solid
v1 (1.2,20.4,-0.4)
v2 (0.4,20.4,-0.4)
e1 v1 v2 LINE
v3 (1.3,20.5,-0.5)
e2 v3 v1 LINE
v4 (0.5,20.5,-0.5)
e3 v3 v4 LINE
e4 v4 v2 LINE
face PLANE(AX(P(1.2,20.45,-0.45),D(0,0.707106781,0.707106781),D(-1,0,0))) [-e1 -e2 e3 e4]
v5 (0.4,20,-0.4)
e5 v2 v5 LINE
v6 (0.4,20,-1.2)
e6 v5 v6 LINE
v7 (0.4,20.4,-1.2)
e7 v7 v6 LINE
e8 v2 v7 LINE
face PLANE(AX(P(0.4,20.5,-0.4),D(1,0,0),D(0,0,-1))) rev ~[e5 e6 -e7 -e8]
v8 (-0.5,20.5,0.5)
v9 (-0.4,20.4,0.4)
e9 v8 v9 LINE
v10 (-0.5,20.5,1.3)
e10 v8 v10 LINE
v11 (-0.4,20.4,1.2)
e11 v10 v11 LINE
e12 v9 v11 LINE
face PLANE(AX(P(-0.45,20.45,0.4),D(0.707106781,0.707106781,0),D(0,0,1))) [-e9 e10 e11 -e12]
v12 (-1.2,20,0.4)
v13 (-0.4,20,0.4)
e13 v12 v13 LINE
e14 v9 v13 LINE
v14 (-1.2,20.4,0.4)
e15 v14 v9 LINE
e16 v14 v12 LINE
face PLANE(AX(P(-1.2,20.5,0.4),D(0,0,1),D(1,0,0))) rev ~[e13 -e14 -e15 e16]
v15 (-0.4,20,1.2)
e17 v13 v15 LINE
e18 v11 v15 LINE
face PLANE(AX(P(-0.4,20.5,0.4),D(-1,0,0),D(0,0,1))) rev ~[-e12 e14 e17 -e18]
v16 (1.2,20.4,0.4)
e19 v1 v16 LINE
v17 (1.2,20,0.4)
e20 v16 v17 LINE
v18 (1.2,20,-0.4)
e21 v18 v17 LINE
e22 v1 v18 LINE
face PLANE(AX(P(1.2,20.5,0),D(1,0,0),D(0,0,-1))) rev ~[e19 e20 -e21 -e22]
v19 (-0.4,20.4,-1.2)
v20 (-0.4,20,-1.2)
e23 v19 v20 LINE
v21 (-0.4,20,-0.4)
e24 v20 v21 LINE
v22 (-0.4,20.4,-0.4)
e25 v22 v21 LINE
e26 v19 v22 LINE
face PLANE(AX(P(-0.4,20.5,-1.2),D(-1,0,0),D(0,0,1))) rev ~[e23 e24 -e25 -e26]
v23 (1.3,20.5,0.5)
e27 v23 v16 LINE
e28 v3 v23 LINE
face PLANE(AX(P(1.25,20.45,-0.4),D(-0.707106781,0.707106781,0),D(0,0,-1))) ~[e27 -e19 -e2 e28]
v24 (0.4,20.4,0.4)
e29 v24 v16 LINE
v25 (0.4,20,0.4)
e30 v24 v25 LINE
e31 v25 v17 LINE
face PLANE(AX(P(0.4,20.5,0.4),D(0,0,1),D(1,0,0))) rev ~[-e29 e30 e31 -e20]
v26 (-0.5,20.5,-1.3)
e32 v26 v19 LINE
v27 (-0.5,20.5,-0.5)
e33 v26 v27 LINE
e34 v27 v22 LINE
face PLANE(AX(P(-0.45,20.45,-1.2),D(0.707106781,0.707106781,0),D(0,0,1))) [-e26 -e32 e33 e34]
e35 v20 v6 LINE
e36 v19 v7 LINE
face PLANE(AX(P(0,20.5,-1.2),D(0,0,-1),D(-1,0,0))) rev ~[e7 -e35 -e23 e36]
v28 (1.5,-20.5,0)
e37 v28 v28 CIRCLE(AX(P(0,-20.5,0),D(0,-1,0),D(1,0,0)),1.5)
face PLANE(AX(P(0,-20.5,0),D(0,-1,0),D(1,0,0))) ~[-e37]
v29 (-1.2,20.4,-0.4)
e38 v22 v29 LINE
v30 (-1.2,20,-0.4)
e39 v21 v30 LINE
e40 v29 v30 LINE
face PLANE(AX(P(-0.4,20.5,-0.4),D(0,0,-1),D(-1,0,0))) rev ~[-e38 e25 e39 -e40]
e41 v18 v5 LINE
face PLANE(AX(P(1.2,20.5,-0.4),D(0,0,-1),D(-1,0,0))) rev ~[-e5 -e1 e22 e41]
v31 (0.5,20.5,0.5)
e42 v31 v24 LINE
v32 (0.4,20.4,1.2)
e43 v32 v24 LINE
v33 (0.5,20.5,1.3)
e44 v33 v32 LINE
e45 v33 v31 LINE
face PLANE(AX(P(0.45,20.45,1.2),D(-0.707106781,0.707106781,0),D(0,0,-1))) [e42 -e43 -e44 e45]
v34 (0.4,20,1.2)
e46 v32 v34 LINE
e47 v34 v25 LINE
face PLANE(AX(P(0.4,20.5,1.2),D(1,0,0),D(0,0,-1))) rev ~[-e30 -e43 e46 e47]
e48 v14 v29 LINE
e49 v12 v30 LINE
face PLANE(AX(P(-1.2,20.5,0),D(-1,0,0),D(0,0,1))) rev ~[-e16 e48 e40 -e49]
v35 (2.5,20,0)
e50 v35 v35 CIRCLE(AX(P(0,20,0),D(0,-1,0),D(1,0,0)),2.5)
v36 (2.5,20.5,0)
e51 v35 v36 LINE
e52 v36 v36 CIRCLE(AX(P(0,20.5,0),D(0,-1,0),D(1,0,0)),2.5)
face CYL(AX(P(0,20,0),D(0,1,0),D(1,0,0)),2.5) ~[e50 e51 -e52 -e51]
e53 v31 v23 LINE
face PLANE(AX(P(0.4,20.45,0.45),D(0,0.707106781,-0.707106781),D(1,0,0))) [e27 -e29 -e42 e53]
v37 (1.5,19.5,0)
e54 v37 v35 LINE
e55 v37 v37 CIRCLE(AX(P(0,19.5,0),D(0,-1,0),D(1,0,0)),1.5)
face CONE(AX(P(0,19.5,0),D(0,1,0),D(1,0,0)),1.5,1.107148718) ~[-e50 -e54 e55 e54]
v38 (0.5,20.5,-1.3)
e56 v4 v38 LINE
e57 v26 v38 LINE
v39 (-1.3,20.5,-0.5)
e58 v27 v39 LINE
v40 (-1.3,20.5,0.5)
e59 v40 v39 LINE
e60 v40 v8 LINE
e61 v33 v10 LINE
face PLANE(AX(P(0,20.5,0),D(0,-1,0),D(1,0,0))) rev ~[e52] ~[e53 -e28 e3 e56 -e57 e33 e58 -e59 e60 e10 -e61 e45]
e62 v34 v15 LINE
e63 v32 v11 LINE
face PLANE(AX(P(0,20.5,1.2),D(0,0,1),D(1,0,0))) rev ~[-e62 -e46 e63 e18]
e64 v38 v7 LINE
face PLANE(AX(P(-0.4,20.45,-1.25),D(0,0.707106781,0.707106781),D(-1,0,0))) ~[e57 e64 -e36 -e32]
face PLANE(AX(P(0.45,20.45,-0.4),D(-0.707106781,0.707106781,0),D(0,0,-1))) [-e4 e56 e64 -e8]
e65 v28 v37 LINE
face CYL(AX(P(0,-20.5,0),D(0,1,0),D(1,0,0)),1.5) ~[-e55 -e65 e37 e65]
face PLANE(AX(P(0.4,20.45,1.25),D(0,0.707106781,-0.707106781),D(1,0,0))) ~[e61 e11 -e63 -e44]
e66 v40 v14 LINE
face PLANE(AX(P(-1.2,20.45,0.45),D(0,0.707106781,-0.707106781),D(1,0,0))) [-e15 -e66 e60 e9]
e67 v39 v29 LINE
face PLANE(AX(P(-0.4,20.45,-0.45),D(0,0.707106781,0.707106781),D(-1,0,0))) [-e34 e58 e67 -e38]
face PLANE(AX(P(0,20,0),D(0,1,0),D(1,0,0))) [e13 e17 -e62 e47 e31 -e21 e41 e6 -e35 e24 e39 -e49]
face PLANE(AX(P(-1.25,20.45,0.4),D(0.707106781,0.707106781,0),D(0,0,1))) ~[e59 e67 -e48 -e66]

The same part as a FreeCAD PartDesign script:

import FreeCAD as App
import Part
import Sketcher
from FreeCAD import Vector
Q = App.Units.Quantity


def edges_at(feature, points):
    """Names of the edges that pass closest to the given points."""
    edges = feature.Shape.Edges
    near = lambda p: min(range(len(edges)), key=lambda i: edges[i].distToShape(Part.Vertex(*p))[0])
    return sorted({f"Edge{near(p) + 1}" for p in points})


def add_polygon(sketch, points):
    """Adds a closed chain of lines whose ends are joined by coincident constraints."""
    first, n = sketch.GeometryCount, len(points)
    for a, b in zip(points, points[1:] + points[:1]):
        sketch.addGeometry(Part.LineSegment(App.Vector(*a, 0), App.Vector(*b, 0)), False)
    for i in range(n):
        sketch.addConstraint(Sketcher.Constraint("Coincident", first + i, 2, first + (i + 1) % n, 1))

doc = App.newDocument("Part")
params = doc.addObject("Spreadsheet::Sheet", "Params")
for row, (alias, value) in enumerate([
    ("sketch1_height", "41 mm"),
    ("sketch1_height2", "40 mm"),
    ("sketch1_width", "1.5 mm"),
    ("sketch1_width2", "2.5 mm"),
    ("sketch1_height3", "0.5 mm"),
    ("revolution_angle", "360 deg"),
    ("pocket1_length", "0.5 mm"),
    ("chamfer_size", "0.1 mm"),
], start=1):
    params.set(f"A{row}", alias)
    params.set(f"B{row}", "=" + value)
    params.setAlias(f"B{row}", alias)

body = doc.addObject("PartDesign::Body", "Body")

# Sketch on XY plane
sketch1 = doc.addObject("Sketcher::SketchObject", "Sketch")
body.addObject(sketch1)
sketch1.AttachmentSupport = (doc.XY_Plane, [""])
sketch1.MapMode = "FlatFace"
add_polygon(sketch1, [(0, 20.5), (0, -20.5), (1.5, -20.5), (1.5, 19.5), (2.5, 20), (2.5, 20.5)])  # lines 0-5
sketch1.addConstraint([
    Sketcher.Constraint("Vertical", 0),
    Sketcher.Constraint("Horizontal", 1),
    Sketcher.Constraint("Vertical", 2),
    Sketcher.Constraint("Vertical", 4),
    Sketcher.Constraint("Horizontal", 5),
    Sketcher.Constraint("Symmetric", 0, 2, 5, 2, -1, 1),
    Sketcher.Constraint("DistanceY", 0, 2, 0, 1, Q("41 mm")),
    Sketcher.Constraint("DistanceY", 2, 1, 2, 2, Q("40 mm")),
    Sketcher.Constraint("DistanceX", 1, 1, 1, 2, Q("1.5 mm")),
    Sketcher.Constraint("DistanceX", 5, 2, 5, 1, Q("2.5 mm")),
    Sketcher.Constraint("DistanceY", 4, 1, 4, 2, Q("0.5 mm")),
])
sketch1.setExpression("Constraints[12]", "Params.sketch1_height")
sketch1.setExpression("Constraints[13]", "Params.sketch1_height2")
sketch1.setExpression("Constraints[14]", "Params.sketch1_width")
sketch1.setExpression("Constraints[15]", "Params.sketch1_width2")
sketch1.setExpression("Constraints[16]", "Params.sketch1_height3")
revolution = doc.addObject("PartDesign::Revolution", "Revolution")
body.addObject(revolution)
revolution.Profile = sketch1
revolution.ReferenceAxis = (sketch1, ["V_Axis"])
revolution.setExpression("Angle", "Params.revolution_angle")

# Sketch on XZ plane
sketch2 = doc.addObject("Sketcher::SketchObject", "Sketch001")
body.addObject(sketch2)
sketch2.AttachmentSupport = (doc.XZ_Plane, [""])
sketch2.MapMode = "FlatFace"
sketch2.AttachmentOffset = App.Placement(Vector(0, 0, -20.5), App.Rotation())
add_polygon(sketch2, [(0.4, -1.2), (-0.4, -1.2), (-0.4, -0.4), (-1.2, -0.4), (-1.2, 0.4), (-0.4, 0.4), (-0.4, 1.2), (0.4, 1.2), (0.4, 0.4), (1.2, 0.4), (1.2, -0.4), (0.4, -0.4)])  # lines 0-11
sketch2.addConstraint([
    Sketcher.Constraint("Horizontal", 0),
    Sketcher.Constraint("Vertical", 1),
    Sketcher.Constraint("Horizontal", 2),
    Sketcher.Constraint("Vertical", 3),
    Sketcher.Constraint("Horizontal", 4),
    Sketcher.Constraint("Vertical", 5),
    Sketcher.Constraint("Horizontal", 6),
    Sketcher.Constraint("Vertical", 7),
    Sketcher.Constraint("Horizontal", 8),
    Sketcher.Constraint("Vertical", 9),
    Sketcher.Constraint("Horizontal", 10),
    Sketcher.Constraint("Vertical", 11),
    Sketcher.Constraint("Symmetric", 0, 2, 6, 2, -1, 1),
    Sketcher.Constraint("Symmetric", 2, 2, 8, 2, -1, 1),
    Sketcher.Constraint("Symmetric", 4, 2, 10, 2, -1, 1),
    Sketcher.Constraint("Symmetric", 4, 2, 7, 2, -2),
    Sketcher.Constraint("Equal", 0, 2),
    Sketcher.Constraint("Equal", 10, 1),
    Sketcher.Constraint("Equal", 1, 3),
    Sketcher.Constraint("DistanceX", 0, 2, -1, 1, Q("0.4 mm")),
])
pocket1 = doc.addObject("PartDesign::Pocket", "Pocket")
body.addObject(pocket1)
pocket1.Profile = sketch2
pocket1.setExpression("Length", "Params.pocket1_length")
pocket1.Reversed = True
doc.recompute()

chamfer = doc.addObject("PartDesign::Chamfer", "Chamfer")
body.addObject(chamfer)
chamfer.Base = (pocket1, edges_at(pocket1, [
    (-0.8, 20.5, -0.4),
    (-0.4, 20.5, -0.8),
    (0, 20.5, -1.2),
    (0.4, 20.5, -0.8),
    (0.8, 20.5, -0.4),
    (1.2, 20.5, 0),
    (0.8, 20.5, 0.4),
    (0.4, 20.5, 0.8),
    (0, 20.5, 1.2),
    (-0.4, 20.5, 0.8),
    (-1.2, 20.5, 0),
    (-0.8, 20.5, 0.4),
]))
chamfer.setExpression("Size", "Params.chamfer_size")

doc.recompute()
